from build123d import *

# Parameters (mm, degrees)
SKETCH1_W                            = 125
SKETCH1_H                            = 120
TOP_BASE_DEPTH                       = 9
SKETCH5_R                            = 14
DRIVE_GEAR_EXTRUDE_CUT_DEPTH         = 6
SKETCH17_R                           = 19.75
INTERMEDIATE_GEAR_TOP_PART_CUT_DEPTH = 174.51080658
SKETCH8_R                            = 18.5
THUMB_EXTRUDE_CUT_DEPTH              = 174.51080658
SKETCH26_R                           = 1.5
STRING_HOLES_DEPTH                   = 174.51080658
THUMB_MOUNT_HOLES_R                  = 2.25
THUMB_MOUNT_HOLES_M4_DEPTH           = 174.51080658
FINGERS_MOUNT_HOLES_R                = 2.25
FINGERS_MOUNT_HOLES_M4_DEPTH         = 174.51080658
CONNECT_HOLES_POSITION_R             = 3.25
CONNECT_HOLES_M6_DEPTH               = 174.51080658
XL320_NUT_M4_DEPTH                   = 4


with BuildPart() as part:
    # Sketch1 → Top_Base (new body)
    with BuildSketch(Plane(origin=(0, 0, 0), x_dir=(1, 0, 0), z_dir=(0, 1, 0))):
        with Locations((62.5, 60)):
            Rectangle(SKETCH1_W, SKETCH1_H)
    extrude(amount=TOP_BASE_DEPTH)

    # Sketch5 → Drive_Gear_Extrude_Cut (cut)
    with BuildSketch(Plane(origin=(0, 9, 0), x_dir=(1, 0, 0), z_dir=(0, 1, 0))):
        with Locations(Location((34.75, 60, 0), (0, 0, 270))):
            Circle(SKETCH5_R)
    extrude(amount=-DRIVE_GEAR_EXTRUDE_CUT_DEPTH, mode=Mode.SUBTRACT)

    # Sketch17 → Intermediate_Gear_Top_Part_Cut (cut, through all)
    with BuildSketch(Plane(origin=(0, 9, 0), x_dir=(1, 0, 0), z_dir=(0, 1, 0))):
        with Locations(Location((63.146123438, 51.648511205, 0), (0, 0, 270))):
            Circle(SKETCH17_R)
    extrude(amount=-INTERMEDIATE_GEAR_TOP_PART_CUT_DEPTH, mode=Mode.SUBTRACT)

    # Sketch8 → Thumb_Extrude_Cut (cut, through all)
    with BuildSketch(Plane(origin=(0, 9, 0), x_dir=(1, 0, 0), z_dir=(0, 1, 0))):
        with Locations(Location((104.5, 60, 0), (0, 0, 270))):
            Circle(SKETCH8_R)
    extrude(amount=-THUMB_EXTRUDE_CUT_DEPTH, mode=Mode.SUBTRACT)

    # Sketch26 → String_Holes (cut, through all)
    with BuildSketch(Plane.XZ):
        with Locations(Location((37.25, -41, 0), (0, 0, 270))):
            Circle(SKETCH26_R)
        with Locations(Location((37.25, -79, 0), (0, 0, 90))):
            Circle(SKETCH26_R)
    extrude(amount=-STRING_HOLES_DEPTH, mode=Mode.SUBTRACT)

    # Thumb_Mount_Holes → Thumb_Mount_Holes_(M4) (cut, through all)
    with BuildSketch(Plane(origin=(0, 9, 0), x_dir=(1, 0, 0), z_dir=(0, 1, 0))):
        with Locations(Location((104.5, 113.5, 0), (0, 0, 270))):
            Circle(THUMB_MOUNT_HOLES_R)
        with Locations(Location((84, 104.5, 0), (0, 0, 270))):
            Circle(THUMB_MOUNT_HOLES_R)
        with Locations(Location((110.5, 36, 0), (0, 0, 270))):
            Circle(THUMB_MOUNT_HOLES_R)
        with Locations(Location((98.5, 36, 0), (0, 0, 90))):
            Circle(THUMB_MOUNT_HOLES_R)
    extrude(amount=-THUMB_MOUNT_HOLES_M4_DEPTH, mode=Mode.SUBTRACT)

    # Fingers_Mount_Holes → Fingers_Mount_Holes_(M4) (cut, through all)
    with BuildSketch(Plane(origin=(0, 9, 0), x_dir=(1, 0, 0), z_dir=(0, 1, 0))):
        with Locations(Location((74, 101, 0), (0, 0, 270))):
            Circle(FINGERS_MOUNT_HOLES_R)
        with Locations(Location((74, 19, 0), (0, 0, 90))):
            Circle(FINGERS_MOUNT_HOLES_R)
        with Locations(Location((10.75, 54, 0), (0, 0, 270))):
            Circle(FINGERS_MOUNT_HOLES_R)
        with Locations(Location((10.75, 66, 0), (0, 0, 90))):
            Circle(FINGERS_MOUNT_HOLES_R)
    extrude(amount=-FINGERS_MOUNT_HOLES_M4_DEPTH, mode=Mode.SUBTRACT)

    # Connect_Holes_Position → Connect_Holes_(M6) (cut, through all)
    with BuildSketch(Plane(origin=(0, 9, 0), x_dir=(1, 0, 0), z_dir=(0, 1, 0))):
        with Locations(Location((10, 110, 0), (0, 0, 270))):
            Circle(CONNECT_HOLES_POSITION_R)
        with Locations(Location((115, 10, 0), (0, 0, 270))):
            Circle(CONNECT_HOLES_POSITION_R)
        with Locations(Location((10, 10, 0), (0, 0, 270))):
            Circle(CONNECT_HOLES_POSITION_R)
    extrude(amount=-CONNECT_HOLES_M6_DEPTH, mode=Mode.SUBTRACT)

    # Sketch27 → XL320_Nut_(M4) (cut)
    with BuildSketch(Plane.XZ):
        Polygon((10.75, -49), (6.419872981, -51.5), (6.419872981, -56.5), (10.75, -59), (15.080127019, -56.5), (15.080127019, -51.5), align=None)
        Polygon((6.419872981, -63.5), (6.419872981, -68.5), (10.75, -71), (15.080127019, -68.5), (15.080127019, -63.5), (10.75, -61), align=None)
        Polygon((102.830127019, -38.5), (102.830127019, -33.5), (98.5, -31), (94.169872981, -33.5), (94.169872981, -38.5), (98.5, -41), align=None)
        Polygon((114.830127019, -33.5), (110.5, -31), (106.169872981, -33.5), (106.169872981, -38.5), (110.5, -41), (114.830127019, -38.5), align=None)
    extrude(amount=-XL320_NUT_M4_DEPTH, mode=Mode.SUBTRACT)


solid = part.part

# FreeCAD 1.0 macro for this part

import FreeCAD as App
import Part
import Sketcher
from FreeCAD import Vector
Q = App.Units.Quantity


def add_polygon(sketch, points):
    """Adds a closed chain of lines whose ends are joined by coincident constraints."""
    first, n = sketch.GeometryCount, len(points)
    for a, b in zip(points, points[1:] + points[:1]):
        sketch.addGeometry(Part.LineSegment(App.Vector(*a, 0), App.Vector(*b, 0)), False)
    for i in range(n):
        sketch.addConstraint(Sketcher.Constraint("Coincident", first + i, 2, first + (i + 1) % n, 1))

doc = App.newDocument("Part")
body = doc.addObject("PartDesign::Body", "Body")

sketch1 = body.newObject("Sketcher::SketchObject", "Sketch")
sketch1.AttachmentSupport = (doc.getObject("XZ_Plane"), [""])
sketch1.MapMode = "FlatFace"
add_polygon(sketch1, [(0, -120), (0, 0), (125, 0), (125, -120)])
sketch1.addConstraint(Sketcher.Constraint("Vertical", 0))
sketch1.addConstraint(Sketcher.Constraint("Horizontal", 1))
sketch1.addConstraint(Sketcher.Constraint("Vertical", 2))
sketch1.addConstraint(Sketcher.Constraint("Horizontal", 3))
sketch1.addConstraint(Sketcher.Constraint("Coincident", 0, 2, -1, 1))
sketch1.addConstraint(Sketcher.Constraint("DistanceX", 1, 1, 1, 2, 125.0))
sketch1.addConstraint(Sketcher.Constraint("DistanceY", 0, 1, 0, 2, 120.0))
pad1 = body.newObject("PartDesign::Pad", "Pad")
pad1.Profile = sketch1
pad1.Length = 9
pad1.Reversed = True

sketch2 = body.newObject("Sketcher::SketchObject", "Sketch001")
sketch2.AttachmentSupport = (doc.getObject("XZ_Plane"), [""])
sketch2.MapMode = "FlatFace"
sketch2.AttachmentOffset = App.Placement(Vector(0, 0, -9), App.Rotation())
sketch2.addGeometry(Part.Circle(Vector(35, -60, 0), Vector(0, 0, 1), 14), False)
sketch2.addConstraint(Sketcher.Constraint("Diameter", 0, 28.0))
sketch2.addConstraint(Sketcher.Constraint("DistanceY", 0, 3, -1, 1, 60.0))
sketch2.addConstraint(Sketcher.Constraint("DistanceX", -1, 1, 0, 3, 34.75))
pocket1 = body.newObject("PartDesign::Pocket", "Pocket")
pocket1.Profile = sketch2
pocket1.Length = 6
pocket1.Reversed = True

sketch3 = body.newObject("Sketcher::SketchObject", "Sketch002")
sketch3.AttachmentSupport = (doc.getObject("XZ_Plane"), [""])
sketch3.MapMode = "FlatFace"
sketch3.AttachmentOffset = App.Placement(Vector(0, 0, -9), App.Rotation())
sketch3.addGeometry(Part.Circle(Vector(63, -52, 0), Vector(0, 0, 1), 20), False)
sketch3.addConstraint(Sketcher.Constraint("Diameter", 0, 39.5))
sketch3.addConstraint(Sketcher.Constraint("DistanceY", 0, 3, -1, 1, 51.648511))
sketch3.addConstraint(Sketcher.Constraint("DistanceX", -1, 1, 0, 3, 63.146123))
pocket2 = body.newObject("PartDesign::Pocket", "Pocket001")
pocket2.Profile = sketch3
pocket2.Type = "ThroughAll"
pocket2.Reversed = True

sketch4 = body.newObject("Sketcher::SketchObject", "Sketch003")
sketch4.AttachmentSupport = (doc.getObject("XZ_Plane"), [""])
sketch4.MapMode = "FlatFace"
sketch4.AttachmentOffset = App.Placement(Vector(0, 0, -9), App.Rotation())
sketch4.addGeometry(Part.Circle(Vector(104, -60, 0), Vector(0, 0, 1), 18), False)
sketch4.addConstraint(Sketcher.Constraint("Diameter", 0, 37.0))
sketch4.addConstraint(Sketcher.Constraint("DistanceY", 0, 3, -1, 1, 60.0))
sketch4.addConstraint(Sketcher.Constraint("DistanceX", -1, 1, 0, 3, 104.5))
pocket3 = body.newObject("PartDesign::Pocket", "Pocket002")
pocket3.Profile = sketch4
pocket3.Type = "ThroughAll"
pocket3.Reversed = True

sketch5 = body.newObject("Sketcher::SketchObject", "Sketch004")
sketch5.AttachmentSupport = (doc.getObject("XZ_Plane"), [""])
sketch5.MapMode = "FlatFace"
sketch5.addGeometry(Part.Circle(Vector(37.2, -41, 0), Vector(0, 0, 1), 1.5), False)
sketch5.addGeometry(Part.Circle(Vector(37.2, -79, 0), Vector(0, 0, 1), 1.5), False)
sketch5.addConstraint(Sketcher.Constraint("Equal", 0, 1))
sketch5.addConstraint(Sketcher.Constraint("Vertical", 0, 3, 1, 3))
sketch5.addConstraint(Sketcher.Constraint("Diameter", 0, 3.0))
sketch5.addConstraint(Sketcher.Constraint("DistanceY", 0, 3, -1, 1, 41.0))
sketch5.addConstraint(Sketcher.Constraint("DistanceY", 1, 3, -1, 1, 79.0))
sketch5.addConstraint(Sketcher.Constraint("DistanceX", -1, 1, 0, 3, 37.25))
pocket4 = body.newObject("PartDesign::Pocket", "Pocket003")
pocket4.Profile = sketch5
pocket4.Type = "ThroughAll"

sketch6 = body.newObject("Sketcher::SketchObject", "Sketch005")
sketch6.AttachmentSupport = (doc.getObject("XZ_Plane"), [""])
sketch6.MapMode = "FlatFace"
sketch6.AttachmentOffset = App.Placement(Vector(0, 0, -9), App.Rotation())
sketch6.addGeometry(Part.Circle(Vector(104.5, -113.5, 0), Vector(0, 0, 1), 2.2), False)
sketch6.addGeometry(Part.Circle(Vector(84, -104.5, 0), Vector(0, 0, 1), 2.2), False)
sketch6.addGeometry(Part.Circle(Vector(110.5, -36, 0), Vector(0, 0, 1), 2.2), False)
sketch6.addGeometry(Part.Circle(Vector(98.5, -36, 0), Vector(0, 0, 1), 2.2), False)
sketch6.addConstraint(Sketcher.Constraint("Equal", 0, 1))
sketch6.addConstraint(Sketcher.Constraint("Equal", 1, 2))
sketch6.addConstraint(Sketcher.Constraint("Equal", 2, 3))
sketch6.addConstraint(Sketcher.Constraint("Horizontal", 2, 3, 3, 3))
sketch6.addConstraint(Sketcher.Constraint("Diameter", 0, 4.5))
sketch6.addConstraint(Sketcher.Constraint("DistanceX", -1, 1, 1, 3, 84.0))
sketch6.addConstraint(Sketcher.Constraint("DistanceY", 2, 3, -1, 1, 36.0))
sketch6.addConstraint(Sketcher.Constraint("DistanceY", 0, 3, 1, 3, 9.0))
sketch6.addConstraint(Sketcher.Constraint("DistanceX", 0, 3, 2, 3, 6.0))
sketch6.addConstraint(Sketcher.Constraint("DistanceX", 3, 3, 2, 3, 12.0))
sketch6.addConstraint(Sketcher.Constraint("DistanceX", -1, 1, 0, 3, 104.5))
sketch6.addConstraint(Sketcher.Constraint("DistanceY", 0, 3, -1, 1, 113.5))
pocket5 = body.newObject("PartDesign::Pocket", "Pocket004")
pocket5.Profile = sketch6
pocket5.Type = "ThroughAll"
pocket5.Reversed = True

sketch7 = body.newObject("Sketcher::SketchObject", "Sketch006")
sketch7.AttachmentSupport = (doc.getObject("XZ_Plane"), [""])
sketch7.MapMode = "FlatFace"
sketch7.AttachmentOffset = App.Placement(Vector(0, 0, -9), App.Rotation())
sketch7.addGeometry(Part.Circle(Vector(74, -101, 0), Vector(0, 0, 1), 2.2), False)
sketch7.addGeometry(Part.Circle(Vector(74, -19, 0), Vector(0, 0, 1), 2.2), False)
sketch7.addGeometry(Part.Circle(Vector(10.8, -54, 0), Vector(0, 0, 1), 2.2), False)
sketch7.addGeometry(Part.Circle(Vector(10.8, -66, 0), Vector(0, 0, 1), 2.2), False)
sketch7.addConstraint(Sketcher.Constraint("Equal", 0, 1))
sketch7.addConstraint(Sketcher.Constraint("Equal", 1, 2))
sketch7.addConstraint(Sketcher.Constraint("Equal", 2, 3))
sketch7.addConstraint(Sketcher.Constraint("Vertical", 0, 3, 1, 3))
sketch7.addConstraint(Sketcher.Constraint("Vertical", 2, 3, 3, 3))
sketch7.addConstraint(Sketcher.Constraint("Diameter", 0, 4.5))
sketch7.addConstraint(Sketcher.Constraint("DistanceX", -1, 1, 0, 3, 74.0))
sketch7.addConstraint(Sketcher.Constraint("DistanceY", 0, 3, -1, 1, 101.0))
sketch7.addConstraint(Sketcher.Constraint("DistanceY", 1, 3, -1, 1, 19.0))
sketch7.addConstraint(Sketcher.Constraint("DistanceY", 2, 3, -1, 1, 54.0))
sketch7.addConstraint(Sketcher.Constraint("DistanceY", 3, 3, -1, 1, 66.0))
sketch7.addConstraint(Sketcher.Constraint("DistanceX", -1, 1, 2, 3, 10.75))
pocket6 = body.newObject("PartDesign::Pocket", "Pocket005")
pocket6.Profile = sketch7
pocket6.Type = "ThroughAll"
pocket6.Reversed = True

sketch8 = body.newObject("Sketcher::SketchObject", "Sketch007")
sketch8.AttachmentSupport = (doc.getObject("XZ_Plane"), [""])
sketch8.MapMode = "FlatFace"
sketch8.AttachmentOffset = App.Placement(Vector(0, 0, -9), App.Rotation())
sketch8.addGeometry(Part.Circle(Vector(10, -110, 0), Vector(0, 0, 1), 3.2), False)
sketch8.addGeometry(Part.Circle(Vector(115, -10, 0), Vector(0, 0, 1), 3.2), False)
sketch8.addGeometry(Part.Circle(Vector(10, -10, 0), Vector(0, 0, 1), 3.2), False)
sketch8.addConstraint(Sketcher.Constraint("Equal", 0, 1))
sketch8.addConstraint(Sketcher.Constraint("Equal", 1, 2))
sketch8.addConstraint(Sketcher.Constraint("Horizontal", 1, 3, 2, 3))
sketch8.addConstraint(Sketcher.Constraint("Vertical", 0, 3, 2, 3))
sketch8.addConstraint(Sketcher.Constraint("Diameter", 0, 6.5))
sketch8.addConstraint(Sketcher.Constraint("DistanceX", -1, 1, 0, 3, 10.0))
sketch8.addConstraint(Sketcher.Constraint("DistanceY", 0, 3, -1, 1, 110.0))
sketch8.addConstraint(Sketcher.Constraint("DistanceX", -1, 1, 1, 3, 115.0))
sketch8.addConstraint(Sketcher.Constraint("DistanceY", 1, 3, -1, 1, 10.0))
pocket7 = body.newObject("PartDesign::Pocket", "Pocket006")
pocket7.Profile = sketch8
pocket7.Type = "ThroughAll"
pocket7.Reversed = True

sketch9 = body.newObject("Sketcher::SketchObject", "Sketch008")
sketch9.AttachmentSupport = (doc.getObject("XZ_Plane"), [""])
sketch9.MapMode = "FlatFace"
add_polygon(sketch9, [(11, -49), (6, -52), (6, -56), (11, -59), (15, -56), (15, -52)])
add_polygon(sketch9, [(6, -64), (6, -68), (11, -71), (15, -68), (15, -64), (11, -61)])
add_polygon(sketch9, [(103, -38), (103, -34), (98, -31), (94, -34), (94, -38), (98, -41)])
add_polygon(sketch9, [(115, -34), (110, -31), (106, -34), (106, -38), (110, -41), (115, -38)])
sketch9.addConstraint(Sketcher.Constraint("Vertical", 1))
sketch9.addConstraint(Sketcher.Constraint("Vertical", 4))
sketch9.addConstraint(Sketcher.Constraint("Vertical", 6))
sketch9.addConstraint(Sketcher.Constraint("Vertical", 9))
sketch9.addConstraint(Sketcher.Constraint("Vertical", 12))
sketch9.addConstraint(Sketcher.Constraint("Vertical", 15))
sketch9.addConstraint(Sketcher.Constraint("Vertical", 20))
sketch9.addConstraint(Sketcher.Constraint("Vertical", 23))
sketch9.addConstraint(Sketcher.Constraint("Parallel", 0, 3))
sketch9.addConstraint(Sketcher.Constraint("Parallel", 2, 5))
sketch9.addConstraint(Sketcher.Constraint("Parallel", 5, 7))
sketch9.addConstraint(Sketcher.Constraint("Parallel", 3, 8))
sketch9.addConstraint(Sketcher.Constraint("Parallel", 7, 10))
sketch9.addConstraint(Sketcher.Constraint("Parallel", 8, 11))
sketch9.addConstraint(Sketcher.Constraint("Parallel", 10, 13))
sketch9.addConstraint(Sketcher.Constraint("Parallel", 11, 14))
sketch9.addConstraint(Sketcher.Constraint("Parallel", 13, 16))
sketch9.addConstraint(Sketcher.Constraint("Parallel", 14, 17))
sketch9.addConstraint(Sketcher.Constraint("Parallel", 16, 18))
sketch9.addConstraint(Sketcher.Constraint("Parallel", 17, 19))
sketch9.addConstraint(Sketcher.Constraint("Parallel", 18, 21))
sketch9.addConstraint(Sketcher.Constraint("Parallel", 19, 22))
sketch9.addConstraint(Sketcher.Constraint("Horizontal", 1, 2, 3, 2))
sketch9.addConstraint(Sketcher.Constraint("Horizontal", 0, 2, 4, 2))
sketch9.addConstraint(Sketcher.Constraint("Horizontal", 6, 2, 8, 2))
sketch9.addConstraint(Sketcher.Constraint("Horizontal", 9, 2, 11, 2))
sketch9.addConstraint(Sketcher.Constraint("Horizontal", 12, 2, 14, 2))
sketch9.addConstraint(Sketcher.Constraint("Horizontal", 15, 2, 17, 2))
sketch9.addConstraint(Sketcher.Constraint("Horizontal", 13, 2, 18, 2))
sketch9.addConstraint(Sketcher.Constraint("Horizontal", 14, 2, 19, 2))
sketch9.addConstraint(Sketcher.Constraint("Horizontal", 17, 2, 20, 2))
sketch9.addConstraint(Sketcher.Constraint("Horizontal", 16, 2, 21, 2))
sketch9.addConstraint(Sketcher.Constraint("Horizontal", 20, 2, 22, 2))
sketch9.addConstraint(Sketcher.Constraint("Vertical", 2, 2, 5, 2))
sketch9.addConstraint(Sketcher.Constraint("Vertical", 1, 2, 6, 2))
sketch9.addConstraint(Sketcher.Constraint("Vertical", 5, 2, 7, 2))
sketch9.addConstraint(Sketcher.Constraint("Equal", 4, 6))
sketch9.addConstraint(Sketcher.Constraint("Equal", 9, 12))
sketch9.addConstraint(Sketcher.Constraint("Equal", 11, 13))
sketch9.addConstraint(Sketcher.Constraint("DistanceY", 1, 2, 1, 1, 5.0))
sketch9.addConstraint(Sketcher.Constraint("Angle", 0, Q("-150 deg")))
sketch9.addConstraint(Sketcher.Constraint("Distance", 0, 5.0))
sketch9.addConstraint(Sketcher.Constraint("DistanceY", 2, 2, -1, 1, 59.0))
sketch9.addConstraint(Sketcher.Constraint("DistanceY", 7, 2, -1, 1, 71.0))
sketch9.addConstraint(Sketcher.Constraint("DistanceY", 13, 2, -1, 1, 31.0))
sketch9.addConstraint(Sketcher.Constraint("DistanceX", 13, 2, 18, 2, 12.0))
sketch9.addConstraint(Sketcher.Constraint("DistanceX", -1, 1, 13, 2, 98.5))
sketch9.addConstraint(Sketcher.Constraint("DistanceX", -1, 1, 2, 2, 10.75))
pocket8 = body.newObject("PartDesign::Pocket", "Pocket007")
pocket8.Profile = sketch9
pocket8.Length = 4

doc.recompute()
